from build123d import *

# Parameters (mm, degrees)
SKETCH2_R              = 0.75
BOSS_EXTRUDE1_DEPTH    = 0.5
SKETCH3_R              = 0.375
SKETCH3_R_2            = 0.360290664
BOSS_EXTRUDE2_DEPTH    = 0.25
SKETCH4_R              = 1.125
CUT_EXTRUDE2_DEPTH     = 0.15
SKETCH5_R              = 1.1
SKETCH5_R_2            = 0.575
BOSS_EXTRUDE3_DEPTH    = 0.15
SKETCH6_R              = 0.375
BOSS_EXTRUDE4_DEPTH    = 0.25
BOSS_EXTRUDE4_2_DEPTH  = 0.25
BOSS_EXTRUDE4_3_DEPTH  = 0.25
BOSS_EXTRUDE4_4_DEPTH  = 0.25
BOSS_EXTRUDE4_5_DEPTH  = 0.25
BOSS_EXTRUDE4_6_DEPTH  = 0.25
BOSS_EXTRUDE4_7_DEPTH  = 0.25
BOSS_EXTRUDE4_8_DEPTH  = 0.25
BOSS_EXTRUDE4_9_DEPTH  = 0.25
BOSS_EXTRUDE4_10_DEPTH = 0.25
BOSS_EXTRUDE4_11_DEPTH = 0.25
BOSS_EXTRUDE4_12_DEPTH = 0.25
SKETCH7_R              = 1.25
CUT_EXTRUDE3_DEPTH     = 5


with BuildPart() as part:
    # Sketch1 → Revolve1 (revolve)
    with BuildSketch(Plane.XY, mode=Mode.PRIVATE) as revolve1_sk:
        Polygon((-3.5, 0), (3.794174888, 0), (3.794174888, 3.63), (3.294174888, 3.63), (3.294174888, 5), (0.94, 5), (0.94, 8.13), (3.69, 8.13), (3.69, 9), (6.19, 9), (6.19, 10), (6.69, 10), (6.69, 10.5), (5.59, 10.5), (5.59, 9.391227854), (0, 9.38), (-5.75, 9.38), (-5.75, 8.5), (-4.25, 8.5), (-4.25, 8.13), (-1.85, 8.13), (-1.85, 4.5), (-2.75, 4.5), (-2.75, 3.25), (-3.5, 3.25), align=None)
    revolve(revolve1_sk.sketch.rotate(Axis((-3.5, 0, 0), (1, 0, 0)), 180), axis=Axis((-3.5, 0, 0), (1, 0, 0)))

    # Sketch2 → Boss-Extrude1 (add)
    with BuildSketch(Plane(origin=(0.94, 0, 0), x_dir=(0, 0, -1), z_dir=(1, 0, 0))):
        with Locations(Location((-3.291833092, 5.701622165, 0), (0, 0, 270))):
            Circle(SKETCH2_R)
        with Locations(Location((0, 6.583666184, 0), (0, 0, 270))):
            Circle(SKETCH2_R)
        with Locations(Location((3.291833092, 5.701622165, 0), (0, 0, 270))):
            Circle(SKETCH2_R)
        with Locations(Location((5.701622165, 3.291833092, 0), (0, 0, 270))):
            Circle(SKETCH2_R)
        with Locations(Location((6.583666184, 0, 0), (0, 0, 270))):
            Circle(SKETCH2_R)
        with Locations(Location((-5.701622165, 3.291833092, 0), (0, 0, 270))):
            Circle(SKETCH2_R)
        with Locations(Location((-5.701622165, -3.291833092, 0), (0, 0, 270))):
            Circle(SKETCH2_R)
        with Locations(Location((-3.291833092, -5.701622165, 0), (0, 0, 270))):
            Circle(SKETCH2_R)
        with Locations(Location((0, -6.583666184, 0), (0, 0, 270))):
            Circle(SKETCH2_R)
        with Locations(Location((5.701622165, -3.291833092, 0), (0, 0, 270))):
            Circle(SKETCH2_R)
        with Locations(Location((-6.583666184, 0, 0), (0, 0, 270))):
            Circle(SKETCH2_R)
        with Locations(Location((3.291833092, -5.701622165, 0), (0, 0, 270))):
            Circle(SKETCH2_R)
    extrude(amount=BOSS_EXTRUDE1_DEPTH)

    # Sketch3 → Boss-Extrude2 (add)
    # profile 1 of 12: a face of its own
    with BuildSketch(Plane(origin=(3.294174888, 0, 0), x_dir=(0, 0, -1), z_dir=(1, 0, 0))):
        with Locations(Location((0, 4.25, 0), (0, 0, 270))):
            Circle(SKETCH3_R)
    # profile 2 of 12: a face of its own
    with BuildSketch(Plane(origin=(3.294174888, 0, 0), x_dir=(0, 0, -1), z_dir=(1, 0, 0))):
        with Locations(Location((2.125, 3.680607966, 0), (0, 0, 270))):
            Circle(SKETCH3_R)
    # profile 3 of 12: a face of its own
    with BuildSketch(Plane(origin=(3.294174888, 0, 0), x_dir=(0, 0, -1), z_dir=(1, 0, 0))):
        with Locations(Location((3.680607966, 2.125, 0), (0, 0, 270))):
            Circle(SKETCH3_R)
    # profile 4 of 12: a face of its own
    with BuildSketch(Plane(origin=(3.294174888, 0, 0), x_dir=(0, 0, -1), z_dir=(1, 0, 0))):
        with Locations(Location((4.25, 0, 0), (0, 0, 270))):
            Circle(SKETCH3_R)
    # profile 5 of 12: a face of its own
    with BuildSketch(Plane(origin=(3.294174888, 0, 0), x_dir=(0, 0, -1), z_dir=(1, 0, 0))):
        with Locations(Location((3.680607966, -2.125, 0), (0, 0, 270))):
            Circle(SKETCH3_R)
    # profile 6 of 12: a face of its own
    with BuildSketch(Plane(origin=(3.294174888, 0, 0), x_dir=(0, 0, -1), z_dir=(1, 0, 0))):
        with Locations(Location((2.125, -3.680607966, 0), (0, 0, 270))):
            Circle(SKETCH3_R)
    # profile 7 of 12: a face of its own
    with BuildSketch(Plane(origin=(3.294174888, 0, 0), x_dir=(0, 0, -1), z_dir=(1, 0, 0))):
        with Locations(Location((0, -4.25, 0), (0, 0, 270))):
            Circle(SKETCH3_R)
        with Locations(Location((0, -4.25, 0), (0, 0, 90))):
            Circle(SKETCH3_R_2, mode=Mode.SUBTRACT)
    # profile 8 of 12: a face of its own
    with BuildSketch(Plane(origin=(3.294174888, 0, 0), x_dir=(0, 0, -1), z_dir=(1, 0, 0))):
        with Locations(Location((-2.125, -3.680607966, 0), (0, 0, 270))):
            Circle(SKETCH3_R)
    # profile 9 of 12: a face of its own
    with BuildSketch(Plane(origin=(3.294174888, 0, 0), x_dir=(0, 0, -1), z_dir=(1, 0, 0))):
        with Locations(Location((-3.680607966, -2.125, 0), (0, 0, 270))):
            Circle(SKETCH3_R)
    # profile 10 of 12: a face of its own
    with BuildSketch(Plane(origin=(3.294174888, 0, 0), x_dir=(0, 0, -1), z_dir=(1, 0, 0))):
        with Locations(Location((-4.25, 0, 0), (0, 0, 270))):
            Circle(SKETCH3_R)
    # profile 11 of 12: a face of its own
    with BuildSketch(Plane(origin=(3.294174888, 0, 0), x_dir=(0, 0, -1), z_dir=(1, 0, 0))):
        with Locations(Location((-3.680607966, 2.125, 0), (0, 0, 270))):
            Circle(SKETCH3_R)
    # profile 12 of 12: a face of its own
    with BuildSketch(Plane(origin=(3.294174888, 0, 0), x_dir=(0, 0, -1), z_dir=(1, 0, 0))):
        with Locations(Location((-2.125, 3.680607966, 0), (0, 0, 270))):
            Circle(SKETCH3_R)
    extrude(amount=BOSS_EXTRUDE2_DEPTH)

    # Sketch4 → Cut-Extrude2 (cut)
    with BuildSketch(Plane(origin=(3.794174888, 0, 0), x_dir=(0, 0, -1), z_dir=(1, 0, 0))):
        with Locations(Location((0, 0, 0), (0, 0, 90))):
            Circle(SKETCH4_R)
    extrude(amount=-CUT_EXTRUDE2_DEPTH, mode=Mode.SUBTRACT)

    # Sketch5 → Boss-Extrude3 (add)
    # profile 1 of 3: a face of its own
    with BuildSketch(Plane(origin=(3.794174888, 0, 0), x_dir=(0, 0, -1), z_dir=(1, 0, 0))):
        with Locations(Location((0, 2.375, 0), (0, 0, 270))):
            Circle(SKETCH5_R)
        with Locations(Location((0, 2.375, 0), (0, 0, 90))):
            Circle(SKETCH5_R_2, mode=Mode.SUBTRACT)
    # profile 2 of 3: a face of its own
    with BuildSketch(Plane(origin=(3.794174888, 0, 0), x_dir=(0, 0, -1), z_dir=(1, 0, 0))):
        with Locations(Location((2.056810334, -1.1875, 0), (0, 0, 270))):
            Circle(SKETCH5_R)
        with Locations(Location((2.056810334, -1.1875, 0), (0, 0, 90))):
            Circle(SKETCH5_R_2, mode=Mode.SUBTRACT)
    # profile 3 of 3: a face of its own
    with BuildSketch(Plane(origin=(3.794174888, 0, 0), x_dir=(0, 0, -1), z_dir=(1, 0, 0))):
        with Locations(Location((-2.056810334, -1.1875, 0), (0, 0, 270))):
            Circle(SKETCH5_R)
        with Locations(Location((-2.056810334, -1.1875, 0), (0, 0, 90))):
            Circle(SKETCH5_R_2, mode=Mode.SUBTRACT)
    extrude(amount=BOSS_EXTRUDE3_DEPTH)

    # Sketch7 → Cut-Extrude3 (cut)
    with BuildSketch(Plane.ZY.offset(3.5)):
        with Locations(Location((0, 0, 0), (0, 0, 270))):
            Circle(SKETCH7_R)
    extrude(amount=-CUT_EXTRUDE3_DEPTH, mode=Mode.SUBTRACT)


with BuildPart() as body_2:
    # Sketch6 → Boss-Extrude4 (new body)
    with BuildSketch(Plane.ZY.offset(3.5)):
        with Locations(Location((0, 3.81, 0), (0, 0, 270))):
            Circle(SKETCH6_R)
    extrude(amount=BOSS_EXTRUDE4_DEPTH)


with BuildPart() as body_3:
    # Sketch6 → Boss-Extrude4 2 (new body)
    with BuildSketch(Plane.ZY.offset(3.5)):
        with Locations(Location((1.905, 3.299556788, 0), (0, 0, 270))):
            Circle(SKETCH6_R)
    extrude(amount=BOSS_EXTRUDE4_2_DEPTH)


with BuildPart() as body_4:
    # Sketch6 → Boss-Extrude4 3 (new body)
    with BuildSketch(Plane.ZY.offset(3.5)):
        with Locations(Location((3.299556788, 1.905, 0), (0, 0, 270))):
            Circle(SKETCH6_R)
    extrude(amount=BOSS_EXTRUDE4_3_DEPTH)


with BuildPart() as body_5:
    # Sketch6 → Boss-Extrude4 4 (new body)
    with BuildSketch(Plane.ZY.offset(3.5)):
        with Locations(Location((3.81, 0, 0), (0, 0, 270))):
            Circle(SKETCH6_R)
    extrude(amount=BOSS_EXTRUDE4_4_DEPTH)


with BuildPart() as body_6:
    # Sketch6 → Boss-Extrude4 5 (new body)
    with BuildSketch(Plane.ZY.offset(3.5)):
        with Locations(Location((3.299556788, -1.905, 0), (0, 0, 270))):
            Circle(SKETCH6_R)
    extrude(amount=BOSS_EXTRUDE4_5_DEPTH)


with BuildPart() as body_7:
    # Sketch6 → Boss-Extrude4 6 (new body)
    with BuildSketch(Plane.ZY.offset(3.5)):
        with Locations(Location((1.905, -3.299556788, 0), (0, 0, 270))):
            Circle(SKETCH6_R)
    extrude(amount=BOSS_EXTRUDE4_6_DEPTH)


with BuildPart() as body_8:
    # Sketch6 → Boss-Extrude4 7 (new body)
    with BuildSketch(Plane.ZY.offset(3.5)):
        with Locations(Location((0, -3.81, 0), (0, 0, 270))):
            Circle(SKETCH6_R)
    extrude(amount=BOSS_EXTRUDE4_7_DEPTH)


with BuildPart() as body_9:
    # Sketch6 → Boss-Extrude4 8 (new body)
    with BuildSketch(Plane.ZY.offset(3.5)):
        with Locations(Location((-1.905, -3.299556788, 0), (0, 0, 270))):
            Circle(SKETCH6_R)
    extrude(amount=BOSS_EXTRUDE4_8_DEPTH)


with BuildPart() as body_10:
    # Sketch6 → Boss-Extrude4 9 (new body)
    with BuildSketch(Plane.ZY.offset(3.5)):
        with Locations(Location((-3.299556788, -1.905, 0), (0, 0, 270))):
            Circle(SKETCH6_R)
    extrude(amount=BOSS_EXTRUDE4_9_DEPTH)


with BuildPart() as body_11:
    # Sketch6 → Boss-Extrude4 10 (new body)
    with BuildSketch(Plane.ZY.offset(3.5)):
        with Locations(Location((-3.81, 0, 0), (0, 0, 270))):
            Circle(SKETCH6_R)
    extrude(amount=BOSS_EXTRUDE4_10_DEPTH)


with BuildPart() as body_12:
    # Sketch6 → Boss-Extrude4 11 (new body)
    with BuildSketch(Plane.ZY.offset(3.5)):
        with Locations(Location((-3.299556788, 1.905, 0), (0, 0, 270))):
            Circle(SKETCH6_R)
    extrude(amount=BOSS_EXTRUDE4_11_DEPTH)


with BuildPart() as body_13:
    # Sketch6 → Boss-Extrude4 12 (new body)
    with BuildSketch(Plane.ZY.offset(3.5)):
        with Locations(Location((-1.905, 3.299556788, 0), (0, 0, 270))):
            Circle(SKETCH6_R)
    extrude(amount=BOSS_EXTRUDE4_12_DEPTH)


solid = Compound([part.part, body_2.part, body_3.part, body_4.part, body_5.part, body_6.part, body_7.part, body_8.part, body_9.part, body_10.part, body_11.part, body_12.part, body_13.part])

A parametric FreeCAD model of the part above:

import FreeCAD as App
import Part
import Sketcher
from FreeCAD import Vector

doc = App.newDocument("Part")
body = doc.addObject("PartDesign::Body", "Body")

# Sketch on XY plane
sketch1 = body.newObject("Sketcher::SketchObject", "Sketch")
sketch1.AttachmentSupport = (doc.getObject("XY_Plane"), [""])
sketch1.MapMode = "FlatFace"
sketch1.addGeometry([
    Part.LineSegment(Vector(-3.5, 0, 0), Vector(3.79, 0, 0)),  # 0
    Part.LineSegment(Vector(3.79, 0, 0), Vector(3.79, 3.63, 0)),  # 1
    Part.LineSegment(Vector(3.79, 3.63, 0), Vector(3.29, 3.63, 0)),  # 2
    Part.LineSegment(Vector(3.29, 3.63, 0), Vector(3.29, 5, 0)),  # 3
    Part.LineSegment(Vector(3.29, 5, 0), Vector(0.94, 5, 0)),  # 4
    Part.LineSegment(Vector(0.94, 5, 0), Vector(0.94, 8.13, 0)),  # 5
    Part.LineSegment(Vector(0.94, 8.13, 0), Vector(3.69, 8.13, 0)),  # 6
    Part.LineSegment(Vector(3.69, 8.13, 0), Vector(3.69, 9, 0)),  # 7
    Part.LineSegment(Vector(3.69, 9, 0), Vector(6.19, 9, 0)),  # 8
    Part.LineSegment(Vector(6.19, 9, 0), Vector(6.19, 10, 0)),  # 9
    Part.LineSegment(Vector(6.19, 10, 0), Vector(6.69, 10, 0)),  # 10
    Part.LineSegment(Vector(6.69, 10, 0), Vector(6.69, 10.5, 0)),  # 11
    Part.LineSegment(Vector(6.69, 10.5, 0), Vector(5.59, 10.5, 0)),  # 12
    Part.LineSegment(Vector(5.59, 10.5, 0), Vector(5.59, 9.39, 0)),  # 13
    Part.LineSegment(Vector(5.59, 9.39, 0), Vector(0, 9.38, 0)),  # 14
    Part.LineSegment(Vector(0, 9.38, 0), Vector(-5.75, 9.38, 0)),  # 15
    Part.LineSegment(Vector(-5.75, 9.38, 0), Vector(-5.75, 8.5, 0)),  # 16
    Part.LineSegment(Vector(-5.75, 8.5, 0), Vector(-4.25, 8.5, 0)),  # 17
    Part.LineSegment(Vector(-4.25, 8.5, 0), Vector(-4.25, 8.13, 0)),  # 18
    Part.LineSegment(Vector(-4.25, 8.13, 0), Vector(-1.85, 8.13, 0)),  # 19
    Part.LineSegment(Vector(-1.85, 8.13, 0), Vector(-1.85, 4.5, 0)),  # 20
    Part.LineSegment(Vector(-1.85, 4.5, 0), Vector(-2.75, 4.5, 0)),  # 21
    Part.LineSegment(Vector(-2.75, 4.5, 0), Vector(-2.75, 3.25, 0)),  # 22
    Part.LineSegment(Vector(-2.75, 3.25, 0), Vector(-3.5, 3.25, 0)),  # 23
    Part.LineSegment(Vector(-3.5, 3.25, 0), Vector(-3.5, 0, 0)),  # 24
], False)
sketch1.addConstraint([
    Sketcher.Constraint("Coincident", 0, 2, 1, 1),
    Sketcher.Constraint("Coincident", 1, 2, 2, 1),
    Sketcher.Constraint("Coincident", 2, 2, 3, 1),
    Sketcher.Constraint("Coincident", 3, 2, 4, 1),
    Sketcher.Constraint("Coincident", 4, 2, 5, 1),
    Sketcher.Constraint("Coincident", 5, 2, 6, 1),
    Sketcher.Constraint("Coincident", 6, 2, 7, 1),
    Sketcher.Constraint("Coincident", 7, 2, 8, 1),
    Sketcher.Constraint("Coincident", 8, 2, 9, 1),
    Sketcher.Constraint("Coincident", 9, 2, 10, 1),
    Sketcher.Constraint("Coincident", 10, 2, 11, 1),
    Sketcher.Constraint("Coincident", 11, 2, 12, 1),
    Sketcher.Constraint("Coincident", 12, 2, 13, 1),
    Sketcher.Constraint("Coincident", 13, 2, 14, 1),
    Sketcher.Constraint("Coincident", 14, 2, 15, 1),
    Sketcher.Constraint("Coincident", 15, 2, 16, 1),
    Sketcher.Constraint("Coincident", 16, 2, 17, 1),
    Sketcher.Constraint("Coincident", 17, 2, 18, 1),
    Sketcher.Constraint("Coincident", 18, 2, 19, 1),
    Sketcher.Constraint("Coincident", 19, 2, 20, 1),
    Sketcher.Constraint("Coincident", 20, 2, 21, 1),
    Sketcher.Constraint("Coincident", 21, 2, 22, 1),
    Sketcher.Constraint("Coincident", 22, 2, 23, 1),
    Sketcher.Constraint("Coincident", 23, 2, 24, 1),
    Sketcher.Constraint("Coincident", 24, 2, 0, 1),
    Sketcher.Constraint("Horizontal", 0),
    Sketcher.Constraint("Vertical", 1),
    Sketcher.Constraint("Horizontal", 2),
    Sketcher.Constraint("Vertical", 3),
    Sketcher.Constraint("Horizontal", 4),
    Sketcher.Constraint("Vertical", 5),
    Sketcher.Constraint("Horizontal", 6),
    Sketcher.Constraint("Vertical", 7),
    Sketcher.Constraint("Horizontal", 8),
    Sketcher.Constraint("Vertical", 9),
    Sketcher.Constraint("Horizontal", 10),
    Sketcher.Constraint("Vertical", 11),
    Sketcher.Constraint("Horizontal", 12),
    Sketcher.Constraint("Vertical", 13),
    Sketcher.Constraint("Horizontal", 15),
    Sketcher.Constraint("Vertical", 16),
    Sketcher.Constraint("Horizontal", 17),
    Sketcher.Constraint("Vertical", 18),
    Sketcher.Constraint("Horizontal", 19),
    Sketcher.Constraint("Vertical", 20),
    Sketcher.Constraint("Horizontal", 21),
    Sketcher.Constraint("Vertical", 22),
    Sketcher.Constraint("Horizontal", 23),
    Sketcher.Constraint("Vertical", 24),
    Sketcher.Constraint("PointOnObject", 0, 2, -1),
    Sketcher.Constraint("PointOnObject", 14, 2, -2),
    Sketcher.Constraint("Horizontal", 6, 2, 18, 2),
    Sketcher.Constraint("Equal", 2, 10),
    Sketcher.Constraint("Equal", 10, 11),
    Sketcher.Constraint("Equal", 1, 20),
    Sketcher.Constraint("DistanceY", 9, 1, 9, 2, 1.0),
    Sketcher.Constraint("DistanceX", 2, 2, 2, 1, 0.5),
    Sketcher.Constraint("DistanceX", 8, 1, 8, 2, 2.5),
    Sketcher.Constraint("DistanceX", 12, 2, 12, 1, 1.1),
    Sketcher.Constraint("DistanceX", 17, 1, 17, 2, 1.5),
    Sketcher.Constraint("DistanceX", 19, 1, 19, 2, 2.4),
    Sketcher.Constraint("DistanceX", 21, 2, 21, 1, 0.9),
    Sketcher.Constraint("DistanceY", -1, 1, 3, 2, 5.0),
    Sketcher.Constraint("DistanceY", -1, 1, 7, 2, 9.0),
    Sketcher.Constraint("DistanceY", 20, 2, 17, 2, 4.0),
    Sketcher.Constraint("DistanceX", 6, 1, 6, 2, 2.75),
    Sketcher.Constraint("DistanceX", 15, 2, 15, 1, 5.75),
    Sketcher.Constraint("DistanceX", 23, 2, 23, 1, 0.75),
    Sketcher.Constraint("DistanceY", 1, 1, 1, 2, 3.63),
    Sketcher.Constraint("DistanceY", 5, 1, 5, 2, 3.13),
    Sketcher.Constraint("DistanceY", 16, 2, 16, 1, 0.88),
    Sketcher.Constraint("DistanceY", 22, 2, 22, 1, 1.25),
    Sketcher.Constraint("DistanceX", -1, 1, 4, 2, 0.94),
    Sketcher.Constraint("DistanceX", 0, 1, 0, 2, 7.294175),
    Sketcher.Constraint("DistanceY", 13, 2, 13, 1, 1.108772),
])
revolution = body.newObject("PartDesign::Revolution", "Revolution")
revolution.Profile = sketch1
revolution.ReferenceAxis = (sketch1, ["H_Axis"])
revolution.Angle = 360

# Sketch on YZ plane
sketch2 = body.newObject("Sketcher::SketchObject", "Sketch001")
sketch2.AttachmentSupport = (doc.getObject("YZ_Plane"), [""])
sketch2.MapMode = "FlatFace"
sketch2.AttachmentOffset = App.Placement(Vector(0, 0, 0.94), App.Rotation())
sketch2.addGeometry([
    Part.Circle(Vector(5.7, 3.3, 0), Vector(0, 0, 1), 0.8),  # 0
    Part.Circle(Vector(6.6, 0, 0), Vector(0, 0, 1), 0.8),  # 1
    Part.Circle(Vector(5.7, -3.3, 0), Vector(0, 0, 1), 0.8),  # 2
    Part.Circle(Vector(3.3, -5.7, 0), Vector(0, 0, 1), 0.8),  # 3
    Part.Circle(Vector(0, -6.6, 0), Vector(0, 0, 1), 0.8),  # 4
    Part.Circle(Vector(3.3, 5.7, 0), Vector(0, 0, 1), 0.8),  # 5
    Part.Circle(Vector(-3.3, 5.7, 0), Vector(0, 0, 1), 0.8),  # 6
    Part.Circle(Vector(-5.7, 3.3, 0), Vector(0, 0, 1), 0.8),  # 7
    Part.Circle(Vector(-6.6, 0, 0), Vector(0, 0, 1), 0.8),  # 8
    Part.Circle(Vector(-3.3, -5.7, 0), Vector(0, 0, 1), 0.8),  # 9
    Part.Circle(Vector(0, 6.6, 0), Vector(0, 0, 1), 0.8),  # 10
    Part.Circle(Vector(-5.7, -3.3, 0), Vector(0, 0, 1), 0.8),  # 11
], False)
sketch2.addConstraint([
    Sketcher.Constraint("Equal", 0, 1),
    Sketcher.Constraint("Equal", 1, 2),
    Sketcher.Constraint("Equal", 2, 3),
    Sketcher.Constraint("Equal", 3, 4),
    Sketcher.Constraint("Equal", 4, 5),
    Sketcher.Constraint("Equal", 5, 6),
    Sketcher.Constraint("Equal", 6, 7),
    Sketcher.Constraint("Equal", 7, 8),
    Sketcher.Constraint("Equal", 8, 9),
    Sketcher.Constraint("Equal", 9, 10),
    Sketcher.Constraint("Equal", 10, 11),
    Sketcher.Constraint("Symmetric", 3, 3, 6, 3, -1, 1),
    Sketcher.Constraint("Symmetric", 2, 3, 7, 3, -1, 1),
    Sketcher.Constraint("Symmetric", 1, 3, 8, 3, -1, 1),
    Sketcher.Constraint("Symmetric", 5, 3, 9, 3, -1, 1),
    Sketcher.Constraint("Symmetric", 4, 3, 10, 3, -1, 1),
    Sketcher.Constraint("Symmetric", 0, 3, 11, 3, -1, 1),
    Sketcher.Constraint("Symmetric", 5, 3, 6, 3, -2),
    Sketcher.Constraint("Symmetric", 0, 3, 7, 3, -2),
    Sketcher.Constraint("PointOnObject", 1, 3, -1),
    Sketcher.Constraint("PointOnObject", 4, 3, -2),
    Sketcher.Constraint("Diameter", 0, 1.5),
    Sketcher.Constraint("DistanceY", 4, 3, 0, 3, 9.875499),
    Sketcher.Constraint("DistanceX", 6, 3, 1, 3, 9.875499),
    Sketcher.Constraint("DistanceX", 3, 3, 2, 3, 2.409789),
    Sketcher.Constraint("DistanceY", 3, 3, 2, 3, 2.409789),
    Sketcher.Constraint("DistanceX", -1, 1, 0, 3, 5.701622),
    Sketcher.Constraint("DistanceY", -1, 1, 0, 3, 3.291833),
])
pad1 = body.newObject("PartDesign::Pad", "Pad")
pad1.Profile = sketch2
pad1.Length = 0.5

# Sketch on YZ plane
sketch3 = body.newObject("Sketcher::SketchObject", "Sketch002")
sketch3.AttachmentSupport = (doc.getObject("YZ_Plane"), [""])
sketch3.MapMode = "FlatFace"
sketch3.AttachmentOffset = App.Placement(Vector(0, 0, 3.294175), App.Rotation())
sketch3.addGeometry([
    Part.Circle(Vector(4.25, 0, 0), Vector(0, 0, 1), 0.38),  # 0
    Part.Circle(Vector(3.68, -2.12, 0), Vector(0, 0, 1), 0.38),  # 1
    Part.Circle(Vector(2.12, -3.68, 0), Vector(0, 0, 1), 0.38),  # 2
    Part.Circle(Vector(0, -4.25, 0), Vector(0, 0, 1), 0.38),  # 3
    Part.Circle(Vector(-2.12, -3.68, 0), Vector(0, 0, 1), 0.38),  # 4
    Part.Circle(Vector(-3.68, -2.12, 0), Vector(0, 0, 1), 0.38),  # 5
    Part.Circle(Vector(-4.25, 0, 0), Vector(0, 0, 1), 0.38),  # 6
    Part.Circle(Vector(-4.25, 0, 0), Vector(0, 0, 1), 0.36),  # 7
    Part.Circle(Vector(-3.68, 2.12, 0), Vector(0, 0, 1), 0.38),  # 8
    Part.Circle(Vector(-2.12, 3.68, 0), Vector(0, 0, 1), 0.38),  # 9
    Part.Circle(Vector(0, 4.25, 0), Vector(0, 0, 1), 0.38),  # 10
    Part.Circle(Vector(2.12, 3.68, 0), Vector(0, 0, 1), 0.38),  # 11
    Part.Circle(Vector(3.68, 2.12, 0), Vector(0, 0, 1), 0.38),  # 12
], False)
sketch3.addConstraint([
    Sketcher.Constraint("Coincident", 7, 3, 6, 3),
    Sketcher.Constraint("Equal", 0, 1),
    Sketcher.Constraint("Equal", 1, 2),
    Sketcher.Constraint("Equal", 2, 3),
    Sketcher.Constraint("Equal", 3, 4),
    Sketcher.Constraint("Equal", 4, 5),
    Sketcher.Constraint("Equal", 5, 6),
    Sketcher.Constraint("Equal", 6, 8),
    Sketcher.Constraint("Equal", 8, 9),
    Sketcher.Constraint("Equal", 9, 10),
    Sketcher.Constraint("Equal", 10, 11),
    Sketcher.Constraint("Equal", 11, 12),
    Sketcher.Constraint("Symmetric", 0, 3, 6, 3, -1, 1),
    Sketcher.Constraint("Symmetric", 1, 3, 8, 3, -1, 1),
    Sketcher.Constraint("Symmetric", 2, 3, 9, 3, -1, 1),
    Sketcher.Constraint("Symmetric", 3, 3, 10, 3, -1, 1),
    Sketcher.Constraint("Symmetric", 4, 3, 11, 3, -1, 1),
    Sketcher.Constraint("Symmetric", 5, 3, 12, 3, -1, 1),
    Sketcher.Constraint("Symmetric", 2, 3, 4, 3, -2),
    Sketcher.Constraint("Symmetric", 1, 3, 5, 3, -2),
    Sketcher.Constraint("PointOnObject", 0, 3, -1),
    Sketcher.Constraint("PointOnObject", 3, 3, -2),
    Sketcher.Constraint("Diameter", 0, 0.75),
    Sketcher.Constraint("Diameter", 7, 0.720581),
    Sketcher.Constraint("DistanceX", -1, 1, 0, 3, 4.25),
    Sketcher.Constraint("DistanceY", 3, 3, -1, 1, 4.25),
    Sketcher.Constraint("DistanceX", 4, 3, 2, 3, 4.25),
    Sketcher.Constraint("DistanceY", 5, 3, 8, 3, 4.25),
    Sketcher.Constraint("DistanceX", -1, 1, 1, 3, 3.680608),
    Sketcher.Constraint("DistanceY", 2, 3, -1, 1, 3.680608),
])
pad2 = body.newObject("PartDesign::Pad", "Pad001")
pad2.Profile = sketch3
pad2.Length = 0.25

# Sketch on YZ plane
sketch4 = body.newObject("Sketcher::SketchObject", "Sketch003")
sketch4.AttachmentSupport = (doc.getObject("YZ_Plane"), [""])
sketch4.MapMode = "FlatFace"
sketch4.AttachmentOffset = App.Placement(Vector(0, 0, 3.794175), App.Rotation())
sketch4.addGeometry(Part.Circle(Vector(0, 0, 0), Vector(0, 0, 1), 1.1), False)
sketch4.addConstraint([
    Sketcher.Constraint("Coincident", 0, 3, -1, 1),
    Sketcher.Constraint("Diameter", 0, 2.25),
])
pocket1 = body.newObject("PartDesign::Pocket", "Pocket")
pocket1.Profile = sketch4
pocket1.Length = 0.15

# Sketch on YZ plane
sketch5 = body.newObject("Sketcher::SketchObject", "Sketch004")
sketch5.AttachmentSupport = (doc.getObject("YZ_Plane"), [""])
sketch5.MapMode = "FlatFace"
sketch5.AttachmentOffset = App.Placement(Vector(0, 0, 3.794175), App.Rotation())
sketch5.addGeometry([
    Part.Circle(Vector(2.4, 0, 0), Vector(0, 0, 1), 1.1),  # 0
    Part.Circle(Vector(2.4, 0, 0), Vector(0, 0, 1), 0.6),  # 1
    Part.Circle(Vector(-1.2, -2.1, 0), Vector(0, 0, 1), 1.1),  # 2
    Part.Circle(Vector(-1.2, -2.1, 0), Vector(0, 0, 1), 0.6),  # 3
    Part.Circle(Vector(-1.2, 2.1, 0), Vector(0, 0, 1), 1.1),  # 4
    Part.Circle(Vector(-1.2, 2.1, 0), Vector(0, 0, 1), 0.6),  # 5
], False)
sketch5.addConstraint([
    Sketcher.Constraint("Coincident", 1, 3, 0, 3),
    Sketcher.Constraint("Coincident", 3, 3, 2, 3),
    Sketcher.Constraint("Coincident", 5, 3, 4, 3),
    Sketcher.Constraint("Equal", 0, 2),
    Sketcher.Constraint("Equal", 1, 3),
    Sketcher.Constraint("Equal", 2, 4),
    Sketcher.Constraint("Equal", 3, 5),
    Sketcher.Constraint("Symmetric", 2, 3, 4, 3, -1),
    Sketcher.Constraint("PointOnObject", 0, 3, -1),
    Sketcher.Constraint("Diameter", 0, 2.2),
    Sketcher.Constraint("Diameter", 1, 1.15),
    Sketcher.Constraint("DistanceX", -1, 1, 0, 3, 2.375),
    Sketcher.Constraint("DistanceX", 2, 3, -1, 1, 1.1875),
    Sketcher.Constraint("DistanceY", 2, 3, -1, 1, 2.05681),
])
pad3 = body.newObject("PartDesign::Pad", "Pad002")
pad3.Profile = sketch5
pad3.Length = 0.15

# Sketch on YZ plane
sketch6 = body.newObject("Sketcher::SketchObject", "Sketch005")
sketch6.AttachmentSupport = (doc.getObject("YZ_Plane"), [""])
sketch6.MapMode = "FlatFace"
sketch6.AttachmentOffset = App.Placement(Vector(0, 0, -3.5), App.Rotation())
sketch6.addGeometry(Part.Circle(Vector(0, 0, 0), Vector(0, 0, 1), 1.2), False)
sketch6.addConstraint([
    Sketcher.Constraint("Coincident", 0, 3, -1, 1),
    Sketcher.Constraint("Diameter", 0, 2.5),
])
pocket2 = body.newObject("PartDesign::Pocket", "Pocket001")
pocket2.Profile = sketch6
pocket2.Length = 5
pocket2.Reversed = True
body2 = doc.addObject("PartDesign::Body", "Body001")

# Sketch on YZ plane
sketch7 = body2.newObject("Sketcher::SketchObject", "Sketch006")
sketch7.AttachmentSupport = (doc.getObject("YZ_Plane001"), [""])
sketch7.MapMode = "FlatFace"
sketch7.AttachmentOffset = App.Placement(Vector(0, 0, -3.5), App.Rotation())
sketch7.addGeometry(Part.Circle(Vector(3.81, 0, 0), Vector(0, 0, 1), 0.38), False)
sketch7.addConstraint([
    Sketcher.Constraint("PointOnObject", 0, 3, -1),
    Sketcher.Constraint("Diameter", 0, 0.75),
    Sketcher.Constraint("DistanceX", -1, 1, 0, 3, 3.81),
])
pad4 = body2.newObject("PartDesign::Pad", "Pad003")
pad4.Profile = sketch7
pad4.Length = 0.25
pad4.Reversed = True
body3 = doc.addObject("PartDesign::Body", "Body002")

# Sketch on YZ plane
sketch8 = body3.newObject("Sketcher::SketchObject", "Sketch007")
sketch8.AttachmentSupport = (doc.getObject("YZ_Plane002"), [""])
sketch8.MapMode = "FlatFace"
sketch8.AttachmentOffset = App.Placement(Vector(0, 0, -3.5), App.Rotation())
sketch8.addGeometry(Part.Circle(Vector(3.3, 1.91, 0), Vector(0, 0, 1), 0.38), False)
sketch8.addConstraint([
    Sketcher.Constraint("Diameter", 0, 0.75),
    Sketcher.Constraint("DistanceY", -1, 1, 0, 3, 1.905),
    Sketcher.Constraint("DistanceX", -1, 1, 0, 3, 3.299557),
])
pad5 = body3.newObject("PartDesign::Pad", "Pad004")
pad5.Profile = sketch8
pad5.Length = 0.25
pad5.Reversed = True
body4 = doc.addObject("PartDesign::Body", "Body003")

# Sketch on YZ plane
sketch9 = body4.newObject("Sketcher::SketchObject", "Sketch008")
sketch9.AttachmentSupport = (doc.getObject("YZ_Plane003"), [""])
sketch9.MapMode = "FlatFace"
sketch9.AttachmentOffset = App.Placement(Vector(0, 0, -3.5), App.Rotation())
sketch9.addGeometry(Part.Circle(Vector(1.91, 3.3, 0), Vector(0, 0, 1), 0.38), False)
sketch9.addConstraint([
    Sketcher.Constraint("Diameter", 0, 0.75),
    Sketcher.Constraint("DistanceX", -1, 1, 0, 3, 1.905),
    Sketcher.Constraint("DistanceY", -1, 1, 0, 3, 3.299557),
])
pad6 = body4.newObject("PartDesign::Pad", "Pad005")
pad6.Profile = sketch9
pad6.Length = 0.25
pad6.Reversed = True
body5 = doc.addObject("PartDesign::Body", "Body004")

# Sketch on YZ plane
sketch10 = body5.newObject("Sketcher::SketchObject", "Sketch009")
sketch10.AttachmentSupport = (doc.getObject("YZ_Plane004"), [""])
sketch10.MapMode = "FlatFace"
sketch10.AttachmentOffset = App.Placement(Vector(0, 0, -3.5), App.Rotation())
sketch10.addGeometry(Part.Circle(Vector(0, 3.81, 0), Vector(0, 0, 1), 0.38), False)
sketch10.addConstraint([
    Sketcher.Constraint("PointOnObject", 0, 3, -2),
    Sketcher.Constraint("Diameter", 0, 0.75),
    Sketcher.Constraint("DistanceY", -1, 1, 0, 3, 3.81),
])
pad7 = body5.newObject("PartDesign::Pad", "Pad006")
pad7.Profile = sketch10
pad7.Length = 0.25
pad7.Reversed = True
body6 = doc.addObject("PartDesign::Body", "Body005")

# Sketch on YZ plane
sketch11 = body6.newObject("Sketcher::SketchObject", "Sketch010")
sketch11.AttachmentSupport = (doc.getObject("YZ_Plane005"), [""])
sketch11.MapMode = "FlatFace"
sketch11.AttachmentOffset = App.Placement(Vector(0, 0, -3.5), App.Rotation())
sketch11.addGeometry(Part.Circle(Vector(-1.91, 3.3, 0), Vector(0, 0, 1), 0.38), False)
sketch11.addConstraint([
    Sketcher.Constraint("Diameter", 0, 0.75),
    Sketcher.Constraint("DistanceX", 0, 3, -1, 1, 1.905),
    Sketcher.Constraint("DistanceY", -1, 1, 0, 3, 3.299557),
])
pad8 = body6.newObject("PartDesign::Pad", "Pad007")
pad8.Profile = sketch11
pad8.Length = 0.25
pad8.Reversed = True
body7 = doc.addObject("PartDesign::Body", "Body006")

# Sketch on YZ plane
sketch12 = body7.newObject("Sketcher::SketchObject", "Sketch011")
sketch12.AttachmentSupport = (doc.getObject("YZ_Plane006"), [""])
sketch12.MapMode = "FlatFace"
sketch12.AttachmentOffset = App.Placement(Vector(0, 0, -3.5), App.Rotation())
sketch12.addGeometry(Part.Circle(Vector(-3.3, 1.91, 0), Vector(0, 0, 1), 0.38), False)
sketch12.addConstraint([
    Sketcher.Constraint("Diameter", 0, 0.75),
    Sketcher.Constraint("DistanceY", -1, 1, 0, 3, 1.905),
    Sketcher.Constraint("DistanceX", 0, 3, -1, 1, 3.299557),
])
pad9 = body7.newObject("PartDesign::Pad", "Pad008")
pad9.Profile = sketch12
pad9.Length = 0.25
pad9.Reversed = True
body8 = doc.addObject("PartDesign::Body", "Body007")

# Sketch on YZ plane
sketch13 = body8.newObject("Sketcher::SketchObject", "Sketch012")
sketch13.AttachmentSupport = (doc.getObject("YZ_Plane007"), [""])
sketch13.MapMode = "FlatFace"
sketch13.AttachmentOffset = App.Placement(Vector(0, 0, -3.5), App.Rotation())
sketch13.addGeometry(Part.Circle(Vector(-3.81, 0, 0), Vector(0, 0, 1), 0.38), False)
sketch13.addConstraint([
    Sketcher.Constraint("PointOnObject", 0, 3, -1),
    Sketcher.Constraint("Diameter", 0, 0.75),
    Sketcher.Constraint("DistanceX", 0, 3, -1, 1, 3.81),
])
pad10 = body8.newObject("PartDesign::Pad", "Pad009")
pad10.Profile = sketch13
pad10.Length = 0.25
pad10.Reversed = True
body9 = doc.addObject("PartDesign::Body", "Body008")

# Sketch on YZ plane
sketch14 = body9.newObject("Sketcher::SketchObject", "Sketch013")
sketch14.AttachmentSupport = (doc.getObject("YZ_Plane008"), [""])
sketch14.MapMode = "FlatFace"
sketch14.AttachmentOffset = App.Placement(Vector(0, 0, -3.5), App.Rotation())
sketch14.addGeometry(Part.Circle(Vector(-3.3, -1.91, 0), Vector(0, 0, 1), 0.38), False)
sketch14.addConstraint([
    Sketcher.Constraint("Diameter", 0, 0.75),
    Sketcher.Constraint("DistanceY", 0, 3, -1, 1, 1.905),
    Sketcher.Constraint("DistanceX", 0, 3, -1, 1, 3.299557),
])
pad11 = body9.newObject("PartDesign::Pad", "Pad010")
pad11.Profile = sketch14
pad11.Length = 0.25
pad11.Reversed = True
body10 = doc.addObject("PartDesign::Body", "Body009")

# Sketch on YZ plane
sketch15 = body10.newObject("Sketcher::SketchObject", "Sketch014")
sketch15.AttachmentSupport = (doc.getObject("YZ_Plane009"), [""])
sketch15.MapMode = "FlatFace"
sketch15.AttachmentOffset = App.Placement(Vector(0, 0, -3.5), App.Rotation())
sketch15.addGeometry(Part.Circle(Vector(-1.91, -3.3, 0), Vector(0, 0, 1), 0.38), False)
sketch15.addConstraint([
    Sketcher.Constraint("Diameter", 0, 0.75),
    Sketcher.Constraint("DistanceX", 0, 3, -1, 1, 1.905),
    Sketcher.Constraint("DistanceY", 0, 3, -1, 1, 3.299557),
])
pad12 = body10.newObject("PartDesign::Pad", "Pad011")
pad12.Profile = sketch15
pad12.Length = 0.25
pad12.Reversed = True
body11 = doc.addObject("PartDesign::Body", "Body010")

# Sketch on YZ plane
sketch16 = body11.newObject("Sketcher::SketchObject", "Sketch015")
sketch16.AttachmentSupport = (doc.getObject("YZ_Plane010"), [""])
sketch16.MapMode = "FlatFace"
sketch16.AttachmentOffset = App.Placement(Vector(0, 0, -3.5), App.Rotation())
sketch16.addGeometry(Part.Circle(Vector(0, -3.81, 0), Vector(0, 0, 1), 0.38), False)
sketch16.addConstraint([
    Sketcher.Constraint("PointOnObject", 0, 3, -2),
    Sketcher.Constraint("Diameter", 0, 0.75),
    Sketcher.Constraint("DistanceY", 0, 3, -1, 1, 3.81),
])
pad13 = body11.newObject("PartDesign::Pad", "Pad012")
pad13.Profile = sketch16
pad13.Length = 0.25
pad13.Reversed = True
body12 = doc.addObject("PartDesign::Body", "Body011")

# Sketch on YZ plane
sketch17 = body12.newObject("Sketcher::SketchObject", "Sketch016")
sketch17.AttachmentSupport = (doc.getObject("YZ_Plane011"), [""])
sketch17.MapMode = "FlatFace"
sketch17.AttachmentOffset = App.Placement(Vector(0, 0, -3.5), App.Rotation())
sketch17.addGeometry(Part.Circle(Vector(1.91, -3.3, 0), Vector(0, 0, 1), 0.38), False)
sketch17.addConstraint([
    Sketcher.Constraint("Diameter", 0, 0.75),
    Sketcher.Constraint("DistanceX", -1, 1, 0, 3, 1.905),
    Sketcher.Constraint("DistanceY", 0, 3, -1, 1, 3.299557),
])
pad14 = body12.newObject("PartDesign::Pad", "Pad013")
pad14.Profile = sketch17
pad14.Length = 0.25
pad14.Reversed = True
body13 = doc.addObject("PartDesign::Body", "Body012")

# Sketch on YZ plane
sketch18 = body13.newObject("Sketcher::SketchObject", "Sketch017")
sketch18.AttachmentSupport = (doc.getObject("YZ_Plane012"), [""])
sketch18.MapMode = "FlatFace"
sketch18.AttachmentOffset = App.Placement(Vector(0, 0, -3.5), App.Rotation())
sketch18.addGeometry(Part.Circle(Vector(3.3, -1.91, 0), Vector(0, 0, 1), 0.38), False)
sketch18.addConstraint([
    Sketcher.Constraint("Diameter", 0, 0.75),
    Sketcher.Constraint("DistanceY", 0, 3, -1, 1, 1.905),
    Sketcher.Constraint("DistanceX", -1, 1, 0, 3, 3.299557),
])
pad15 = body13.newObject("PartDesign::Pad", "Pad014")
pad15.Profile = sketch18
pad15.Length = 0.25
pad15.Reversed = True

doc.recompute()
